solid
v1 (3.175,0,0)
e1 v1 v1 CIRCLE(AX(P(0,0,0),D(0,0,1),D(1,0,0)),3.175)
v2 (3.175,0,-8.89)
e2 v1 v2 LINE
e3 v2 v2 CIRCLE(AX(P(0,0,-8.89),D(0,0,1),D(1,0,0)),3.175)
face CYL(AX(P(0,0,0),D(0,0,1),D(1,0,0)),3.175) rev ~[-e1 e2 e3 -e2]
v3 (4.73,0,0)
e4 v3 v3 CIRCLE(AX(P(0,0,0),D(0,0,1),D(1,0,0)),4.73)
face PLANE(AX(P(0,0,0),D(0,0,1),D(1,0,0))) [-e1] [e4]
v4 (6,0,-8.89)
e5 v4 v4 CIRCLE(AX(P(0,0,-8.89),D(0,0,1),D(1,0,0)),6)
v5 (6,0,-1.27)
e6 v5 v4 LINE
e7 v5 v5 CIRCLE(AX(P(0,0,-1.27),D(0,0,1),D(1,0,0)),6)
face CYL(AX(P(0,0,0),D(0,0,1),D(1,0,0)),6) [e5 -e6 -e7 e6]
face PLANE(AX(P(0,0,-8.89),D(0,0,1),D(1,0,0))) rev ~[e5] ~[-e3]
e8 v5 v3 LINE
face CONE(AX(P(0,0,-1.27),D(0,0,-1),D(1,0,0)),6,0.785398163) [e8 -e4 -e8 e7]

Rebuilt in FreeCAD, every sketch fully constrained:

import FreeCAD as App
import Part
import Sketcher
from FreeCAD import Vector
Q = App.Units.Quantity


def edges_at(feature, points):
    """Names of the edges that pass closest to the given points."""
    edges = feature.Shape.Edges
    near = lambda p: min(range(len(edges)), key=lambda i: edges[i].distToShape(Part.Vertex(*p))[0])
    return sorted({f"Edge{near(p) + 1}" for p in points})

doc = App.newDocument("Part")
params = doc.addObject("Spreadsheet::Sheet", "Params")
for row, (alias, value) in enumerate([
    ("sketch1_diameter", "0.25 in"),
    ("pad1_length", "0.35 in"),
    ("chamfer_size", "0.05 in"),
], start=1):
    params.set(f"A{row}", alias)
    params.set(f"B{row}", "=" + value)
    params.setAlias(f"B{row}", alias)

body = doc.addObject("PartDesign::Body", "Body")

sketch1 = body.newObject("Sketcher::SketchObject", "Sketch")
sketch1.AttachmentSupport = (doc.getObject("XY_Plane"), [""])
sketch1.MapMode = "FlatFace"
sketch1.addGeometry([
    Part.Circle(Vector(0, 0, 0), Vector(0, 0, 1), 6),
    Part.Circle(Vector(0, 0, 0), Vector(0, 0, 1), 3.2),
], False)
sketch1.addConstraint([
    Sketcher.Constraint("Coincident", 0, 3, -1, 1),
    Sketcher.Constraint("Coincident", 1, 3, -1, 1),
    Sketcher.Constraint("Diameter", 1, Q("0.25 in")),
    Sketcher.Constraint("Diameter", 0, 12.0),
])
sketch1.setExpression("Constraints[2]", "Params.sketch1_diameter")
pad1 = body.newObject("PartDesign::Pad", "Pad")
pad1.Profile = sketch1
pad1.setExpression("Length", "Params.pad1_length")
pad1.Reversed = True
doc.recompute()

chamfer = body.newObject("PartDesign::Chamfer", "Chamfer")
chamfer.Base = (pad1, edges_at(pad1, [(-6, 0, 0)]))
chamfer.setExpression("Size", "Params.chamfer_size")

doc.recompute()
